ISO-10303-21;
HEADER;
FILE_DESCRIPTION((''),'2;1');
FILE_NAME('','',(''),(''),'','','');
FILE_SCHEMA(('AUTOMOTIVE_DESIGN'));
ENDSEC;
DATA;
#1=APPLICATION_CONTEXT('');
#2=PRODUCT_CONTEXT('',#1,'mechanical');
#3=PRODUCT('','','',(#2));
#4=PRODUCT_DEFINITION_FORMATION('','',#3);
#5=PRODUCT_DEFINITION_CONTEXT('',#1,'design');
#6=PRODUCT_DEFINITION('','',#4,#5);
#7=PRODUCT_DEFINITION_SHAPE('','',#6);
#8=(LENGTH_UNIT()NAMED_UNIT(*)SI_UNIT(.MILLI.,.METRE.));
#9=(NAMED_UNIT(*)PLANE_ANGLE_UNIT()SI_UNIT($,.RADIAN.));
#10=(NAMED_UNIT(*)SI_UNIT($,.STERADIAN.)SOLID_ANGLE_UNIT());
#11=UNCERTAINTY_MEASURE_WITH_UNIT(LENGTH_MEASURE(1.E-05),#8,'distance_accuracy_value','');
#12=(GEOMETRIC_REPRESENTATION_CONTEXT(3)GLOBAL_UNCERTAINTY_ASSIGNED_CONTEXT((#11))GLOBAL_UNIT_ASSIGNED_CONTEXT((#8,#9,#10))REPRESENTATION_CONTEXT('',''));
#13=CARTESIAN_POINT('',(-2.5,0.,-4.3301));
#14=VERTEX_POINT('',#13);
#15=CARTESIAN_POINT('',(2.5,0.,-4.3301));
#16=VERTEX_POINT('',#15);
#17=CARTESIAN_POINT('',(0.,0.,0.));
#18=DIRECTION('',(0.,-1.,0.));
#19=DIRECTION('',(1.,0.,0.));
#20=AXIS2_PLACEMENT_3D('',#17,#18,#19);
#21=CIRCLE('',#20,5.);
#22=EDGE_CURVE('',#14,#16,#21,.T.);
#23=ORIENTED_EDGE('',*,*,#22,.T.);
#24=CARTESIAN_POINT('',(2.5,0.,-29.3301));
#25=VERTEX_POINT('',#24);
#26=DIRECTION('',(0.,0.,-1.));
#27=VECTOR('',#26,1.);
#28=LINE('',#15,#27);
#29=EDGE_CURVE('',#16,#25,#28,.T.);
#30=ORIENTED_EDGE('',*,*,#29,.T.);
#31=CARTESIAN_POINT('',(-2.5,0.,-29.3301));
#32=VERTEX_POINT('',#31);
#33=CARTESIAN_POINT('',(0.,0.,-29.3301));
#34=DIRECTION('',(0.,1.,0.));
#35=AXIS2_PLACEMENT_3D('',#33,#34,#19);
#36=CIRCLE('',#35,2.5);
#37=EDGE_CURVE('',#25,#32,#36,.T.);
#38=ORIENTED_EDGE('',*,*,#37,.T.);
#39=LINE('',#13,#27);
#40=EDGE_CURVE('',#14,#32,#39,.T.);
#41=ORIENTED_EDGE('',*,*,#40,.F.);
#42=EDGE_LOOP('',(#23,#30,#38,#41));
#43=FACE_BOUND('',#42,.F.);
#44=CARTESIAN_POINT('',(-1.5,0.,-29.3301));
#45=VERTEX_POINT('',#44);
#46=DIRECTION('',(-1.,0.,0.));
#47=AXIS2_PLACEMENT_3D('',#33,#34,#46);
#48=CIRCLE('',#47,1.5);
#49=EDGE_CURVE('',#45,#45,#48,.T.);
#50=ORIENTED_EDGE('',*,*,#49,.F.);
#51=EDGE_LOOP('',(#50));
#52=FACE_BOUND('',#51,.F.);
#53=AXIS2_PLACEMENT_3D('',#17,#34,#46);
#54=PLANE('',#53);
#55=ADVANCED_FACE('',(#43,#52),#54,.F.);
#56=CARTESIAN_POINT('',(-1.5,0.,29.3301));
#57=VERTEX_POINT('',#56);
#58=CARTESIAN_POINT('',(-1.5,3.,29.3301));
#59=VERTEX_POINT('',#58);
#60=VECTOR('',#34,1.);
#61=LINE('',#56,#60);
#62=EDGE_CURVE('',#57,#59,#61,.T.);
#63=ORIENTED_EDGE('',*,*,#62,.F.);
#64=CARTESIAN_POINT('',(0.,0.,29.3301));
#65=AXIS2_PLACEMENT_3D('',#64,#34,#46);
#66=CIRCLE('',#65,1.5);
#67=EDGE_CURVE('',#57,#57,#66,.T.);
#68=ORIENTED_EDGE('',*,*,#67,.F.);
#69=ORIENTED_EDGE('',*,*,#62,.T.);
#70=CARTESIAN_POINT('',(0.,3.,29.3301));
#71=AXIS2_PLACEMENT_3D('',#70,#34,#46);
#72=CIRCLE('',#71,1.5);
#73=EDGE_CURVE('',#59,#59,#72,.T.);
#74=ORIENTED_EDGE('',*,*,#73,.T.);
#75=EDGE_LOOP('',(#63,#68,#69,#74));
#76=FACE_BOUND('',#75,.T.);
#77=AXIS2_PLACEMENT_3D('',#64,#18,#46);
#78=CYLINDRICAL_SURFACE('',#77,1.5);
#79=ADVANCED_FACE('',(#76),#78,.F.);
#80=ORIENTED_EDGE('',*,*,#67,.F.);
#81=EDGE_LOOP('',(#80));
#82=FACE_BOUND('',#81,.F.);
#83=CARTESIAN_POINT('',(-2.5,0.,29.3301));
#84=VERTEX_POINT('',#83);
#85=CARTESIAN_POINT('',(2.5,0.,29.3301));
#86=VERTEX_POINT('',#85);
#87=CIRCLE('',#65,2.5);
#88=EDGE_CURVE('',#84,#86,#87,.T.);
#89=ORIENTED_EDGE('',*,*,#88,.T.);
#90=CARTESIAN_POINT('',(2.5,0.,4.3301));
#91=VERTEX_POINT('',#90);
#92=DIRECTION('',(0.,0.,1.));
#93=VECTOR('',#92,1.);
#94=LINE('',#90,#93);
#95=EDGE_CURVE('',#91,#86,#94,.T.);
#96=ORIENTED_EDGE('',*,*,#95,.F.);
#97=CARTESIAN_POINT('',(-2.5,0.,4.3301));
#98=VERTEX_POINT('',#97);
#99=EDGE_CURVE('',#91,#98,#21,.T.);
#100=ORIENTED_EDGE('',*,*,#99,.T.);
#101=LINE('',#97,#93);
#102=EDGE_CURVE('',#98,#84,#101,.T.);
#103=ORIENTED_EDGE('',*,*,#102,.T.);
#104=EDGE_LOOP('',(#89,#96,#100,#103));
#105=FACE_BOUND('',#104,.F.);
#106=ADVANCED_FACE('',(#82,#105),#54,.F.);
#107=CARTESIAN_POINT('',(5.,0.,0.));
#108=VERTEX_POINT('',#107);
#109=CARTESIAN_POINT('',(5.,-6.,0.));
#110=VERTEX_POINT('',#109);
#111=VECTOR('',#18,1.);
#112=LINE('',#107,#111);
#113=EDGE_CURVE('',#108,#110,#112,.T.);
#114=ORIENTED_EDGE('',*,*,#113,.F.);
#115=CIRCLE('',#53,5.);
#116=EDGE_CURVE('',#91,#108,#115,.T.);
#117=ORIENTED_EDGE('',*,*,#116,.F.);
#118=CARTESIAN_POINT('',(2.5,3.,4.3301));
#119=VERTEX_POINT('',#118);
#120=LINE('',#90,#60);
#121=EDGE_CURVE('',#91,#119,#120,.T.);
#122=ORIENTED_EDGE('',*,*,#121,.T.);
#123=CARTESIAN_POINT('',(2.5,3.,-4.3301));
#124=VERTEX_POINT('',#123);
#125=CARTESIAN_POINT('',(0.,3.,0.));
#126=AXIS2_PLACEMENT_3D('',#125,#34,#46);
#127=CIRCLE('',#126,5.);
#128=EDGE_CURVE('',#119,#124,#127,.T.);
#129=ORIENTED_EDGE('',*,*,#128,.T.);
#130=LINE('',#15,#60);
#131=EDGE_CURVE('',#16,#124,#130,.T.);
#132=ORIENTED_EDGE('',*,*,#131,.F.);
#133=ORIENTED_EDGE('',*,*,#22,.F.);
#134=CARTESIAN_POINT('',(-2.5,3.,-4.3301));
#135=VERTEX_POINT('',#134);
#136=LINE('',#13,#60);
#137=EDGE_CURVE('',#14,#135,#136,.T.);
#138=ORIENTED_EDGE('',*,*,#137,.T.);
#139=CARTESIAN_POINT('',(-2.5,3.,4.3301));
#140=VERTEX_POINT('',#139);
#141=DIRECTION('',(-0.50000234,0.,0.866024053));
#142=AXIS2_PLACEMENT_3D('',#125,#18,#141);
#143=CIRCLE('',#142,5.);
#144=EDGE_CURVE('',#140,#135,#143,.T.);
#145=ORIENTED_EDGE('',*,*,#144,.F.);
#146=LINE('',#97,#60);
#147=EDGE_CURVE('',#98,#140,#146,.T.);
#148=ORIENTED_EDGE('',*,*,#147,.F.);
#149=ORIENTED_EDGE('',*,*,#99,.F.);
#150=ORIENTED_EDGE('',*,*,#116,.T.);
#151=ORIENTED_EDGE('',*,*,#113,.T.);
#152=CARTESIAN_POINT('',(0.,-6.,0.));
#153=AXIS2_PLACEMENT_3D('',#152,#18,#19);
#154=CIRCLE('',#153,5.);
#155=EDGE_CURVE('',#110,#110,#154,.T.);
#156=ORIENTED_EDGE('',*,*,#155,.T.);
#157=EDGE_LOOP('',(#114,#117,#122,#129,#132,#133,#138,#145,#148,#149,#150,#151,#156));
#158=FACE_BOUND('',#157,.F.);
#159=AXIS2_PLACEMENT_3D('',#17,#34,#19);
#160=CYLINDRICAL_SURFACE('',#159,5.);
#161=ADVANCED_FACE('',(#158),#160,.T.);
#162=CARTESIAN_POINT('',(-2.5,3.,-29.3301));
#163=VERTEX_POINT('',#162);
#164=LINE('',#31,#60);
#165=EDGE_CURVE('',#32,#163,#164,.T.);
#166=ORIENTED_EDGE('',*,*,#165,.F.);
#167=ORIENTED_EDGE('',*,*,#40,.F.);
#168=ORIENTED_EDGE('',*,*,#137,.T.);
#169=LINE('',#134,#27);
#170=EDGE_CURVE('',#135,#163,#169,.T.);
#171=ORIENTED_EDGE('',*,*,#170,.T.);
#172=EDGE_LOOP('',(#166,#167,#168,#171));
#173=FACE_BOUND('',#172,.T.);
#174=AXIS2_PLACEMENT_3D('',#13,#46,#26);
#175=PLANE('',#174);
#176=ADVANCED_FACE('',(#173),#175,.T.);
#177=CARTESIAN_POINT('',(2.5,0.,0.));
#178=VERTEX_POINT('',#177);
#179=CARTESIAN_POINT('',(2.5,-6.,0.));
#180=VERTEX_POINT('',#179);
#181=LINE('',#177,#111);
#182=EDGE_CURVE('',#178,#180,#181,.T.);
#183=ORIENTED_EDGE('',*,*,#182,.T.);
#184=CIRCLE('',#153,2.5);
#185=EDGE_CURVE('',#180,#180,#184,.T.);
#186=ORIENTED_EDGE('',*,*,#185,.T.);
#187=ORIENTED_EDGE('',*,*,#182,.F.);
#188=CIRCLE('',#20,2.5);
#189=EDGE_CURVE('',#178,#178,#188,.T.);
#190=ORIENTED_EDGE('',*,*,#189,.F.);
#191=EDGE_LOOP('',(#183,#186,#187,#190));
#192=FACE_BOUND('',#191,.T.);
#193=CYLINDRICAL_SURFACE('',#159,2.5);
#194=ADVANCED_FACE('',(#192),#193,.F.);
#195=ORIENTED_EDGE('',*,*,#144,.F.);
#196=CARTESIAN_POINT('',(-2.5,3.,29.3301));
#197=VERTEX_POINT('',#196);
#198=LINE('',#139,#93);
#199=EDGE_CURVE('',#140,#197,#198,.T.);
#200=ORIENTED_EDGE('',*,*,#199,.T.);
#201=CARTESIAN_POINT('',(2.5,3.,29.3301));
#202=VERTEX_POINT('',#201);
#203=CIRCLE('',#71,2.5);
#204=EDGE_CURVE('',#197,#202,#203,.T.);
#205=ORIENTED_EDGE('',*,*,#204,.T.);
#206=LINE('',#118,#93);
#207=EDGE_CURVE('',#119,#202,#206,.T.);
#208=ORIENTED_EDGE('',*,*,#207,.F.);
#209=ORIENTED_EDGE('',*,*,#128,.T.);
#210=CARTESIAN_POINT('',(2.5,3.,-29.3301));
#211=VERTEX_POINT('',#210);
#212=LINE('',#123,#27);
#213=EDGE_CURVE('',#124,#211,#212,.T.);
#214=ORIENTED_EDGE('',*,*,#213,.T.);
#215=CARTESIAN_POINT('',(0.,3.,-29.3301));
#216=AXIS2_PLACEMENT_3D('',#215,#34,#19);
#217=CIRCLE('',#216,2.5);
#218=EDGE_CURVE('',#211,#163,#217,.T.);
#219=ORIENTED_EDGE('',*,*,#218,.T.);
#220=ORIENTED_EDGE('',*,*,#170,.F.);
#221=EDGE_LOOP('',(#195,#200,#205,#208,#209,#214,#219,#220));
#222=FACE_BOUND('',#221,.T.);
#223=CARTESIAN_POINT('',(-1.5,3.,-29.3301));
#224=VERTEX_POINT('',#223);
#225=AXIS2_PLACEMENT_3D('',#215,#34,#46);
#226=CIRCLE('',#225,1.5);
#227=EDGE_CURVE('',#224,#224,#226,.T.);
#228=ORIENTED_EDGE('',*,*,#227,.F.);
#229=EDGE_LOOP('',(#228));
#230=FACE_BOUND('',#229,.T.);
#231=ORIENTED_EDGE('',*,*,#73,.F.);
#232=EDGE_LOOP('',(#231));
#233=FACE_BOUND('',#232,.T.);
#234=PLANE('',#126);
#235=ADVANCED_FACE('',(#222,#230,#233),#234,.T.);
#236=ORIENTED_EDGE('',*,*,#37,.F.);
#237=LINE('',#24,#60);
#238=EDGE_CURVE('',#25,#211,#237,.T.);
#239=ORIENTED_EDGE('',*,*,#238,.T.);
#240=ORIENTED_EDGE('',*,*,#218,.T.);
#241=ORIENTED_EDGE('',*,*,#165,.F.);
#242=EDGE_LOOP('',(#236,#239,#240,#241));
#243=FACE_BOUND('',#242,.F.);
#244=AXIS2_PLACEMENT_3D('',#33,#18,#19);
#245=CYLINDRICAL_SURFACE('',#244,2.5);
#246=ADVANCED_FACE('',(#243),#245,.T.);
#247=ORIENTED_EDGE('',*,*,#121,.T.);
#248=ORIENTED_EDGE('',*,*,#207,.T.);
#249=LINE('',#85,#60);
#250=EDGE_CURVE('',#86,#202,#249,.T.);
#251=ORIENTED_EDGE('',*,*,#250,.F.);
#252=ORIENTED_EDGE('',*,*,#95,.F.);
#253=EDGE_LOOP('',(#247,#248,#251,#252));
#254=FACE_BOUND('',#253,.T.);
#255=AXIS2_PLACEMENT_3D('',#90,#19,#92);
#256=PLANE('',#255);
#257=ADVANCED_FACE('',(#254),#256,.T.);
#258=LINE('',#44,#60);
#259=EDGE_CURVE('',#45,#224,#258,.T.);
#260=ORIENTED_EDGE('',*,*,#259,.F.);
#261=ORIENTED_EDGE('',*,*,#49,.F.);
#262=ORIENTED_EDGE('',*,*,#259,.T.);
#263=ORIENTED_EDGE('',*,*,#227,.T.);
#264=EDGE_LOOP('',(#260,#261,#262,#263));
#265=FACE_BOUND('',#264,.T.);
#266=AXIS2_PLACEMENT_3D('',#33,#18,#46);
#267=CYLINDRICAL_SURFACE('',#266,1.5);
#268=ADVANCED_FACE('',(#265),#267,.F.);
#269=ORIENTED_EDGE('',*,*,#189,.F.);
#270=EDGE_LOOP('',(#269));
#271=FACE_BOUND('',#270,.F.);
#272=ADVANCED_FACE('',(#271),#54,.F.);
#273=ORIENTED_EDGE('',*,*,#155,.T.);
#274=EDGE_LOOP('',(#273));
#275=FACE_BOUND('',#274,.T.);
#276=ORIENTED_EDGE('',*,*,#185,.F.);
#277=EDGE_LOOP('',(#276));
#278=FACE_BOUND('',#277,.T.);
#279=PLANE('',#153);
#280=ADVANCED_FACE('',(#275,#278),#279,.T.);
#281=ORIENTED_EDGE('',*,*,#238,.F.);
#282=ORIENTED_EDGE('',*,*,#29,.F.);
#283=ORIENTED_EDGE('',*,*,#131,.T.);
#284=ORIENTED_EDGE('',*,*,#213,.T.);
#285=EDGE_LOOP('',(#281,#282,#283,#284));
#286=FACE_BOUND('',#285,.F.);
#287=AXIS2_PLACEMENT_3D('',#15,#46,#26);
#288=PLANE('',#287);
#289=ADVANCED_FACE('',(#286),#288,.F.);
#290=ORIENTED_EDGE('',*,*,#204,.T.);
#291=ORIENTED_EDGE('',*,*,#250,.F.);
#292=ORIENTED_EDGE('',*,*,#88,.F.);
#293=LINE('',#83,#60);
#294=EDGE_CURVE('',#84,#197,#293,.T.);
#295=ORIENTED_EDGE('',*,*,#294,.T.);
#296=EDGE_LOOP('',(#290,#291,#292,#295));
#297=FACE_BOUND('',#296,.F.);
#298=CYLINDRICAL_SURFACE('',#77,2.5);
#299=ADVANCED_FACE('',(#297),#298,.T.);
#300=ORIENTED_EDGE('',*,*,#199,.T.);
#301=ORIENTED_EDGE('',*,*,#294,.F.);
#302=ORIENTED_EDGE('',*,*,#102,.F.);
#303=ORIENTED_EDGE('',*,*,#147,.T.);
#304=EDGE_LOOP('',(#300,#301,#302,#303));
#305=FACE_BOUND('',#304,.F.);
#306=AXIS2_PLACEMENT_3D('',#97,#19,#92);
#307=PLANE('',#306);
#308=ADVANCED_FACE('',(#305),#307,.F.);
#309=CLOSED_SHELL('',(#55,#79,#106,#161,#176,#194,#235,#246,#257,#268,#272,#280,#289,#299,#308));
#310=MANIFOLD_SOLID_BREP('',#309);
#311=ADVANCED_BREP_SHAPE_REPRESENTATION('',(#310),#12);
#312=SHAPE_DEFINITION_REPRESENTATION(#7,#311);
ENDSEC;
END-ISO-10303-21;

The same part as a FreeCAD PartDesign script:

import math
import FreeCAD as App
import Part
import Sketcher
Q = App.Units.Quantity

doc = App.newDocument("Part")
params = doc.addObject("Spreadsheet::Sheet", "Params")
for row, (alias, value) in enumerate([
    ("sketch1_diameter", "3 mm"),
    ("sketch1_radius", "5 mm"),
    ("sketch1_radius2", "2.5 mm"),
    ("sketch1_height", "25 mm"),
    ("pad1_length", "3 mm"),
    ("sketch2_diameter", "10 mm"),
    ("sketch2_diameter2", "5 mm"),
    ("pad2_length", "6 mm"),
], start=1):
    params.set(f"A{row}", alias)
    params.set(f"B{row}", "=" + value)
    params.setAlias(f"B{row}", alias)

body = doc.addObject("PartDesign::Body", "Body")

# Sketch on XZ plane
sketch1 = body.newObject("Sketcher::SketchObject", "Sketch")
sketch1.AttachmentSupport = (doc.getObject("XZ_Plane"), [""])
sketch1.MapMode = "FlatFace"
sketch1.addGeometry(Part.ArcOfCircle(Part.Circle(App.Vector(0, 0, 0), App.Vector(0, 0, 1), 5), math.radians(120), math.radians(240)), False)
sketch1.addGeometry(Part.LineSegment(App.Vector(-2.5, 4.3, 0), App.Vector(-2.5, 29.3, 0)), False)
sketch1.addGeometry(Part.ArcOfCircle(Part.Circle(App.Vector(0, 29.3, 0), App.Vector(0, 0, 1), 2.5), math.radians(0), math.radians(180)), False)
sketch1.addGeometry(Part.LineSegment(App.Vector(2.5, 29.3, 0), App.Vector(2.5, 4.3, 0)), False)
sketch1.addGeometry(Part.ArcOfCircle(Part.Circle(App.Vector(0, 0, 0), App.Vector(0, 0, 1), 5), math.radians(-60), math.radians(60)), False)
sketch1.addGeometry(Part.LineSegment(App.Vector(2.5, -4.3, 0), App.Vector(2.5, -29.3, 0)), False)
sketch1.addGeometry(Part.ArcOfCircle(Part.Circle(App.Vector(0, -29.3, 0), App.Vector(0, 0, 1), 2.5), math.radians(180), math.radians(360)), False)
sketch1.addGeometry(Part.LineSegment(App.Vector(-2.5, -29.3, 0), App.Vector(-2.5, -4.3, 0)), False)
sketch1.addGeometry(Part.Circle(App.Vector(0, 29.3, 0), App.Vector(0, 0, 1), 1.5), False)
sketch1.addGeometry(Part.Circle(App.Vector(0, -29.3, 0), App.Vector(0, 0, 1), 1.5), False)
sketch1.addConstraint(Sketcher.Constraint("Coincident", 0, 1, 1, 1))
sketch1.addConstraint(Sketcher.Constraint("Tangent", 1, 2, 2, 2))
sketch1.addConstraint(Sketcher.Constraint("Tangent", 2, 1, 3, 1))
sketch1.addConstraint(Sketcher.Constraint("Coincident", 3, 2, 4, 2))
sketch1.addConstraint(Sketcher.Constraint("Coincident", 4, 1, 5, 1))
sketch1.addConstraint(Sketcher.Constraint("Tangent", 5, 2, 6, 2))
sketch1.addConstraint(Sketcher.Constraint("Tangent", 6, 1, 7, 1))
sketch1.addConstraint(Sketcher.Constraint("Coincident", 7, 2, 0, 2))
sketch1.addConstraint(Sketcher.Constraint("Vertical", 1))
sketch1.addConstraint(Sketcher.Constraint("Vertical", 3))
sketch1.addConstraint(Sketcher.Constraint("Vertical", 5))
sketch1.addConstraint(Sketcher.Constraint("Vertical", 7))
sketch1.addConstraint(Sketcher.Constraint("Coincident", 0, 3, -1, 1))
sketch1.addConstraint(Sketcher.Constraint("Coincident", 4, 3, -1, 1))
sketch1.addConstraint(Sketcher.Constraint("Coincident", 8, 3, 2, 3))
sketch1.addConstraint(Sketcher.Constraint("Coincident", 9, 3, 6, 3))
sketch1.addConstraint(Sketcher.Constraint("Equal", 0, 4))
sketch1.addConstraint(Sketcher.Constraint("Equal", 2, 6))
sketch1.addConstraint(Sketcher.Constraint("Equal", 8, 9))
sketch1.addConstraint(Sketcher.Constraint("Symmetric", 2, 3, 6, 3, -1, 1))
sketch1.addConstraint(Sketcher.Constraint("PointOnObject", 2, 3, -2))
sketch1.addConstraint(Sketcher.Constraint("Diameter", 8, Q("3 mm")))
sketch1.addConstraint(Sketcher.Constraint("Radius", 0, Q("5 mm")))
sketch1.addConstraint(Sketcher.Constraint("Radius", 2, Q("2.5 mm")))
sketch1.addConstraint(Sketcher.Constraint("DistanceY", 1, 1, 1, 2, Q("25 mm")))
sketch1.setExpression("Constraints[21]", "Params.sketch1_diameter")
sketch1.setExpression("Constraints[22]", "Params.sketch1_radius")
sketch1.setExpression("Constraints[23]", "Params.sketch1_radius2")
sketch1.setExpression("Constraints[24]", "Params.sketch1_height")
pad1 = body.newObject("PartDesign::Pad", "Pad")
pad1.Profile = sketch1
pad1.setExpression("Length", "Params.pad1_length")
pad1.Reversed = True

# Sketch on XZ plane
sketch2 = body.newObject("Sketcher::SketchObject", "Sketch001")
sketch2.AttachmentSupport = (doc.getObject("XZ_Plane"), [""])
sketch2.MapMode = "FlatFace"
sketch2.addGeometry(Part.Circle(App.Vector(0, 0, 0), App.Vector(0, 0, 1), 5), False)
sketch2.addGeometry(Part.Circle(App.Vector(0, 0, 0), App.Vector(0, 0, 1), 2.5), False)
sketch2.addConstraint(Sketcher.Constraint("Coincident", 0, 3, -1, 1))
sketch2.addConstraint(Sketcher.Constraint("Coincident", 1, 3, -1, 1))
sketch2.addConstraint(Sketcher.Constraint("Diameter", 0, Q("10 mm")))
sketch2.addConstraint(Sketcher.Constraint("Diameter", 1, Q("5 mm")))
sketch2.setExpression("Constraints[2]", "Params.sketch2_diameter")
sketch2.setExpression("Constraints[3]", "Params.sketch2_diameter2")
pad2 = body.newObject("PartDesign::Pad", "Pad001")
pad2.Profile = sketch2
pad2.setExpression("Length", "Params.pad2_length")

doc.recompute()
